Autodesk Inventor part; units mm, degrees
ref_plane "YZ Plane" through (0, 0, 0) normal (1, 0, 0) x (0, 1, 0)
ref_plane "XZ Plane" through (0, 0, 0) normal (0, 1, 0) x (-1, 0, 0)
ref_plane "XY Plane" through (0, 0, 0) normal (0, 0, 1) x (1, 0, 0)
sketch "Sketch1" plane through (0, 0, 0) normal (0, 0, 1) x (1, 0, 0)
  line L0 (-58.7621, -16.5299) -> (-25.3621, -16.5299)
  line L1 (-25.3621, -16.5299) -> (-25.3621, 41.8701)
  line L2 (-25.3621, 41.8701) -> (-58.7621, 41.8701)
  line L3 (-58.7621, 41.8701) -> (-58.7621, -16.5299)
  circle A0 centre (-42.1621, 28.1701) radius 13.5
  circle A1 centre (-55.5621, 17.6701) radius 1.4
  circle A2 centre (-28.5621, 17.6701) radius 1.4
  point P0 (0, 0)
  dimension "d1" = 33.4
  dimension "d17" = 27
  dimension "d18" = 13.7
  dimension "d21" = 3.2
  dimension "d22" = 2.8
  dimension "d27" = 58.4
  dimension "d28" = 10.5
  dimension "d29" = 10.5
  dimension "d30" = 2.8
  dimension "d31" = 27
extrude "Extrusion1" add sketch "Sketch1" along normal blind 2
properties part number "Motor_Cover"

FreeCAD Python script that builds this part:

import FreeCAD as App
import Part
import Sketcher

V = App.Vector
Q = App.Units.Quantity


def add_polygon(sketch, points):
    """Adds a closed chain of lines whose ends are joined by coincident constraints."""
    first, n = sketch.GeometryCount, len(points)
    for a, b in zip(points, points[1:] + points[:1]):
        sketch.addGeometry(Part.LineSegment(App.Vector(*a, 0), App.Vector(*b, 0)), False)
    for i in range(n):
        sketch.addConstraint(Sketcher.Constraint("Coincident", first + i, 2, first + (i + 1) % n, 1))

doc = App.newDocument("Part")
body = doc.addObject("PartDesign::Body", "Body")

sketch1 = body.newObject("Sketcher::SketchObject", "Sketch")
sketch1.AttachmentSupport = (doc.getObject("XY_Plane"), [""])
sketch1.MapMode = "FlatFace"
add_polygon(sketch1, [(-58.8, 41.9), (-58.8, -16.5), (-25.4, -16.5), (-25.4, 41.9)])
sketch1.addGeometry(Part.Circle(V(-55.6, 17.7, 0), V(0, 0, 1), 1.4), False)
sketch1.addGeometry(Part.Circle(V(-42.2, 28.2, 0), V(0, 0, 1), 13.5), False)
sketch1.addGeometry(Part.Circle(V(-28.6, 17.7, 0), V(0, 0, 1), 1.4), False)
sketch1.addConstraint([
    Sketcher.Constraint("Vertical", 0),
    Sketcher.Constraint("Horizontal", 1),
    Sketcher.Constraint("Vertical", 2),
    Sketcher.Constraint("Horizontal", 3),
    Sketcher.Constraint("Equal", 4, 6),
    Sketcher.Constraint("Horizontal", 4, 3, 6, 3),
    Sketcher.Constraint("Diameter", 5, Q("27 mm")),
    Sketcher.Constraint("Diameter", 4, Q("2.8 mm")),
    Sketcher.Constraint("DistanceX", 1, 1, 1, 2, Q("33.4 mm")),
    Sketcher.Constraint("DistanceY", 0, 2, 0, 1, Q("58.4 mm")),
    Sketcher.Constraint("DistanceX", 4, 3, 6, 3, Q("27 mm")),
    Sketcher.Constraint("DistanceY", 4, 3, 5, 3, Q("10.5 mm")),
    Sketcher.Constraint("DistanceX", 0, 2, 4, 3, Q("3.2 mm")),
    Sketcher.Constraint("DistanceY", 5, 3, 2, 2, Q("13.7 mm")),
    Sketcher.Constraint("DistanceX", 4, 3, 5, 3, Q("13.4 mm")),
    Sketcher.Constraint("DistanceY", -1, 1, 4, 3, Q("17.67 mm")),
    Sketcher.Constraint("DistanceX", 4, 3, -1, 1, Q("55.562 mm")),
])
pad1 = body.newObject("PartDesign::Pad", "Pad")
pad1.Profile = sketch1
pad1.Length = 2

doc.recompute()
